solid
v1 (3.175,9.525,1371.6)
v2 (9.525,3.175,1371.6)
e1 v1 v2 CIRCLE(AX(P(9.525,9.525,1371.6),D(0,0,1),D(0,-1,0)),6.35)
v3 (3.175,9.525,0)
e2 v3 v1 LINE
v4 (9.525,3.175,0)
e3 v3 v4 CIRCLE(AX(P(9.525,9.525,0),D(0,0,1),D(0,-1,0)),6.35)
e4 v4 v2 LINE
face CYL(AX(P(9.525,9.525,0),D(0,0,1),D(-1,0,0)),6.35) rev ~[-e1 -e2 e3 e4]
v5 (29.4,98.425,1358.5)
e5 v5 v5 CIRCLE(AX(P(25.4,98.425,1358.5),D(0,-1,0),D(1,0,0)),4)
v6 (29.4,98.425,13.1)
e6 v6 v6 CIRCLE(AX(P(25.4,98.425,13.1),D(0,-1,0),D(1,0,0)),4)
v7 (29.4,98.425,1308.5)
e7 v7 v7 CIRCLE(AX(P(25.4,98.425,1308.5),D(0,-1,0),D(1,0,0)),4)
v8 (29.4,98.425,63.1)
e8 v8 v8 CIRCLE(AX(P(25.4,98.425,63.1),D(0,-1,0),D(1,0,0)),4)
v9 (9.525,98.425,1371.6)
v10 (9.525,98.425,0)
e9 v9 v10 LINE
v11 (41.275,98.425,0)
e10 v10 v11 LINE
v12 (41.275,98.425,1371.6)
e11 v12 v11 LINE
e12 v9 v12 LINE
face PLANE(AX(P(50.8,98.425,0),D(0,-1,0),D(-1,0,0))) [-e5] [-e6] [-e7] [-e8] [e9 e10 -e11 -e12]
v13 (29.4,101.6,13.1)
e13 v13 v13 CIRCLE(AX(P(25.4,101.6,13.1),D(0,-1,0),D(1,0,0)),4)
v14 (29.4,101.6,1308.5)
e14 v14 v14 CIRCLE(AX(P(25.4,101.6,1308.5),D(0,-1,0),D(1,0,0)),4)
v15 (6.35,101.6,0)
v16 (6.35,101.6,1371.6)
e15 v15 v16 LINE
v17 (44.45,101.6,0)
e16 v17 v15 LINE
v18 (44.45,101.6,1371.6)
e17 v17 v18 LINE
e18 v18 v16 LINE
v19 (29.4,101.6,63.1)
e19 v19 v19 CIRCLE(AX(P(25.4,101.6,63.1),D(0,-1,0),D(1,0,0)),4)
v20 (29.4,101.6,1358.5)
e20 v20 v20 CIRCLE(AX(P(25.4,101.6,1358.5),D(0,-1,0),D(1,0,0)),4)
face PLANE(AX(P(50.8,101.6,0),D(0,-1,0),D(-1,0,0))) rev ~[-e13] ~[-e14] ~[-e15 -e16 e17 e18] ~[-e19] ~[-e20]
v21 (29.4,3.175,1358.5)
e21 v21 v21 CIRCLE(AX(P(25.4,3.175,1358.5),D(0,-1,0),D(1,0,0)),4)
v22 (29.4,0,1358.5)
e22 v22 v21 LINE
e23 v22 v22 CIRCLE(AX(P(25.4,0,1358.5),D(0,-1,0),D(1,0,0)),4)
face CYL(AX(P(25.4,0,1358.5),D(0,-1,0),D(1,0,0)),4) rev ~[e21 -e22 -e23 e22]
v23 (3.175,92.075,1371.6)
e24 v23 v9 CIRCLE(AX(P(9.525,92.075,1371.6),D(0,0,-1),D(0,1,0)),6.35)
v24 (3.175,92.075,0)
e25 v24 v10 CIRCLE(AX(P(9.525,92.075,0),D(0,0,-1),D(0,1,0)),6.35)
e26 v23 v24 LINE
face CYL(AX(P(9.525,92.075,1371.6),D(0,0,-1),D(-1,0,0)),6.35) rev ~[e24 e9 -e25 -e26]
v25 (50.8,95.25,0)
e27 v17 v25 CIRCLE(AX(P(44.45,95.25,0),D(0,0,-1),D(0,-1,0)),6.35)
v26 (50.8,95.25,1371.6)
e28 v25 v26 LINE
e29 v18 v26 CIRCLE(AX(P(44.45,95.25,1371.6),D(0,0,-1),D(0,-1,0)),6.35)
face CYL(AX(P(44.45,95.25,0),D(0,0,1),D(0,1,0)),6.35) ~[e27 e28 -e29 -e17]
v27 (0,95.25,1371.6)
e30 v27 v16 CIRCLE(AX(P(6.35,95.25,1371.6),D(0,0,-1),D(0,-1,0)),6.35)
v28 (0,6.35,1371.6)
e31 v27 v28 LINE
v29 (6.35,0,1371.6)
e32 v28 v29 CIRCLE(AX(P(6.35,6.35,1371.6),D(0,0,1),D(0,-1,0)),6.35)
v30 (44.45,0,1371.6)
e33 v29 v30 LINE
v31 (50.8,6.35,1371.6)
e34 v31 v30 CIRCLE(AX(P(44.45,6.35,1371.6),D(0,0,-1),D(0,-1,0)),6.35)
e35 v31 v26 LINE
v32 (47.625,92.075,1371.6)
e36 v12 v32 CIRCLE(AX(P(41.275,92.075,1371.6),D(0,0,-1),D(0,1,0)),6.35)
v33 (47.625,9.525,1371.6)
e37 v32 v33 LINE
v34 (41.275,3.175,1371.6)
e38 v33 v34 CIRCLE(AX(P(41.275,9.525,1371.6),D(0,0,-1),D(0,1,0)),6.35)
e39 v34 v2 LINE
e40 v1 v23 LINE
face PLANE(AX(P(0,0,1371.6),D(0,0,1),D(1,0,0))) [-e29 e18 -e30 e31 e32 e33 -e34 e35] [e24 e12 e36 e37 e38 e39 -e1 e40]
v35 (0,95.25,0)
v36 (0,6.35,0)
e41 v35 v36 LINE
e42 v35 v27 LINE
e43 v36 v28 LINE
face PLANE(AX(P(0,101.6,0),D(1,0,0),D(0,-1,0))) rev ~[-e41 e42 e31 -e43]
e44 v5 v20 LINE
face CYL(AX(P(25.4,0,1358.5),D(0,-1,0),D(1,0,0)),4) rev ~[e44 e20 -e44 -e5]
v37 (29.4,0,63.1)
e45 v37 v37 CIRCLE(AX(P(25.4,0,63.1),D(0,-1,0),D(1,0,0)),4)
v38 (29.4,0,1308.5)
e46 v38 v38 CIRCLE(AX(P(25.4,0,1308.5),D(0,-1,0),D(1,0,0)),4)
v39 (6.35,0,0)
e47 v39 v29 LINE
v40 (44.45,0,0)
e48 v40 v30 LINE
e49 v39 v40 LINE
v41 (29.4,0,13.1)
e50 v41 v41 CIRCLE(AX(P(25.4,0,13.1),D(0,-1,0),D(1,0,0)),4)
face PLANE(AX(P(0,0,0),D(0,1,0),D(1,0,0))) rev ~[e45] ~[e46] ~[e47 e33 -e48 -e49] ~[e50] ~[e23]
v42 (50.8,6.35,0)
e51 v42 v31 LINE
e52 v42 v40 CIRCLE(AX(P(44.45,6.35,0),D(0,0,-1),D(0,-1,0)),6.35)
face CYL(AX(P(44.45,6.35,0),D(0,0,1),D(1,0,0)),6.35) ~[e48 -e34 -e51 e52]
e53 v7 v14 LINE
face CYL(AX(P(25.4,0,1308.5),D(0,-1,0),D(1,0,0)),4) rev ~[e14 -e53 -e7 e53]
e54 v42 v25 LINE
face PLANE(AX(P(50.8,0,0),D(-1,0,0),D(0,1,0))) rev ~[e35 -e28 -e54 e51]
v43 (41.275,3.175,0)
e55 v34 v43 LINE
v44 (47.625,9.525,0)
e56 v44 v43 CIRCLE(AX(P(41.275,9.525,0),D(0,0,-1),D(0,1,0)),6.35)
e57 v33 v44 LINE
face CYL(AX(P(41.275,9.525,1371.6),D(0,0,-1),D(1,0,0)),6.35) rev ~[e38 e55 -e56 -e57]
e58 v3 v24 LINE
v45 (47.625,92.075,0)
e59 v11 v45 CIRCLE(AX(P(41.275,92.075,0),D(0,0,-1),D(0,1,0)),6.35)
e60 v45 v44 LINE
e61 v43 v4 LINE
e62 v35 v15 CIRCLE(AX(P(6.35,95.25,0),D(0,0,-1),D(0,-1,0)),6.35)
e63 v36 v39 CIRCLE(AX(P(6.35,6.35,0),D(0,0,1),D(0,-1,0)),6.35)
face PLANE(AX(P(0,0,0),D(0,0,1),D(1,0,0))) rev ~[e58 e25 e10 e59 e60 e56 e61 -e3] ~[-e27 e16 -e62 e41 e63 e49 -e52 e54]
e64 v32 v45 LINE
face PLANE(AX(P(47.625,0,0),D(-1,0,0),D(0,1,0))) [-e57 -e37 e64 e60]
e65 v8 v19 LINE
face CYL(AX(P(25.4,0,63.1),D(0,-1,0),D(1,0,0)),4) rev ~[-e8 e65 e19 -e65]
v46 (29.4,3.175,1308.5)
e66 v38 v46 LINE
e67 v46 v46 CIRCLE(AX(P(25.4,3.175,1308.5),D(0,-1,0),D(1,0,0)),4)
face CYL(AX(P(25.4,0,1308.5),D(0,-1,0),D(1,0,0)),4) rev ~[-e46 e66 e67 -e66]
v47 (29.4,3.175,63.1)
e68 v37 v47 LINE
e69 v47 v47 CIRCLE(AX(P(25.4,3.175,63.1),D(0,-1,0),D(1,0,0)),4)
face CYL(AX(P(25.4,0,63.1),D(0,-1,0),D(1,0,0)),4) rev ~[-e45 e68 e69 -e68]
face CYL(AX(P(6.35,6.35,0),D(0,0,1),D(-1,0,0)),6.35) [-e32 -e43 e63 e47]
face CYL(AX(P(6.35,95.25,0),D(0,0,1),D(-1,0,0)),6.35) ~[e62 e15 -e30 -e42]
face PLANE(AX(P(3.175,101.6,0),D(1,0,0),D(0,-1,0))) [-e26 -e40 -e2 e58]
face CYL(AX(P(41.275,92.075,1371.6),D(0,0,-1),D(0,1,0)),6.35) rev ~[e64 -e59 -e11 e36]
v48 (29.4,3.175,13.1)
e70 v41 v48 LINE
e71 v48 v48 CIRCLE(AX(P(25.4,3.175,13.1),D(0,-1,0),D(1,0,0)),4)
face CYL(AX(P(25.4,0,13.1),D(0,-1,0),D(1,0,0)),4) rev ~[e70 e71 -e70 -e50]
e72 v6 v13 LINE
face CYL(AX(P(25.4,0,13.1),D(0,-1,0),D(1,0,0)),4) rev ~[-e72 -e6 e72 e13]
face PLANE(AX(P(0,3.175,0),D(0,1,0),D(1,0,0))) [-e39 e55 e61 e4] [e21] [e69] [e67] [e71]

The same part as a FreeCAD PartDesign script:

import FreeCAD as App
import Part
import Sketcher
from FreeCAD import Vector
Q = App.Units.Quantity


def edges_at(feature, points):
    """Names of the edges that pass closest to the given points."""
    edges = feature.Shape.Edges
    near = lambda p: min(range(len(edges)), key=lambda i: edges[i].distToShape(Part.Vertex(*p))[0])
    return sorted({f"Edge{near(p) + 1}" for p in points})


def faces_at(feature, points):
    """Names of the faces that lie closest to the given points."""
    faces = feature.Shape.Faces
    near = lambda p: min(range(len(faces)), key=lambda i: faces[i].distToShape(Part.Vertex(*p))[0])
    return sorted({f"Face{near(p) + 1}" for p in points})


def add_polygon(sketch, points):
    """Adds a closed chain of lines whose ends are joined by coincident constraints."""
    first, n = sketch.GeometryCount, len(points)
    for a, b in zip(points, points[1:] + points[:1]):
        sketch.addGeometry(Part.LineSegment(App.Vector(*a, 0), App.Vector(*b, 0)), False)
    for i in range(n):
        sketch.addConstraint(Sketcher.Constraint("Coincident", first + i, 2, first + (i + 1) % n, 1))

doc = App.newDocument("Part")
body = doc.addObject("PartDesign::Body", "Body")

# Sketch on XY plane
sketch1 = body.newObject("Sketcher::SketchObject", "Sketch")
sketch1.AttachmentSupport = (doc.getObject("XY_Plane"), [""])
sketch1.MapMode = "FlatFace"
add_polygon(sketch1, [(0, 101.6), (0, 0), (50.8, 0), (50.8, 101.6)])  # lines 0-3
sketch1.addConstraint(Sketcher.Constraint("Vertical", 0))
sketch1.addConstraint(Sketcher.Constraint("Horizontal", 1))
sketch1.addConstraint(Sketcher.Constraint("Vertical", 2))
sketch1.addConstraint(Sketcher.Constraint("Horizontal", 3))
sketch1.addConstraint(Sketcher.Constraint("Coincident", 0, 2, -1, 1))
sketch1.addConstraint(Sketcher.Constraint("DistanceX", 1, 1, 1, 2, Q("2 in")))
sketch1.addConstraint(Sketcher.Constraint("DistanceY", 0, 2, 0, 1, Q("4 in")))
pad1 = body.newObject("PartDesign::Pad", "Pad")
pad1.Profile = sketch1
pad1.Length = Q("54 in")
doc.recompute()

thickness = body.newObject("PartDesign::Thickness", "Thickness")
thickness.Base = (pad1, faces_at(pad1, [(16.933, 67.733, 0), (16.933, 67.733, 1371.6)]))
thickness.Value = Q("0.125 in")
thickness.Reversed = True
thickness.Join = "Intersection"
doc.recompute()

fillet = body.newObject("PartDesign::Fillet", "Fillet")
fillet.Base = (thickness, edges_at(thickness, [
    (3.175, 3.175, 685.8),
    (47.625, 3.175, 685.8),
    (3.175, 98.425, 685.8),
    (47.625, 98.425, 685.8),
    (50.8, 101.6, 685.8),
    (50.8, 0, 685.8),
    (0, 0, 685.8),
    (0, 101.6, 685.8),
]))
fillet.Radius = Q("0.25 in")

# Sketch on XZ plane
sketch2 = body.newObject("Sketcher::SketchObject", "Sketch001")
sketch2.AttachmentSupport = (doc.getObject("XZ_Plane"), [""])
sketch2.MapMode = "FlatFace"
sketch2.addGeometry(Part.Circle(Vector(25.4, 63.1, 0), Vector(0, 0, 1), 4), False)
sketch2.addGeometry(Part.Circle(Vector(25.4, 13.1, 0), Vector(0, 0, 1), 4), False)
sketch2.addGeometry(Part.Circle(Vector(25.4, 1308.5, 0), Vector(0, 0, 1), 4), False)
sketch2.addGeometry(Part.Circle(Vector(25.4, 1358.5, 0), Vector(0, 0, 1), 4), False)
sketch2.addConstraint(Sketcher.Constraint("Equal", 0, 1))
sketch2.addConstraint(Sketcher.Constraint("Equal", 1, 2))
sketch2.addConstraint(Sketcher.Constraint("Equal", 2, 3))
sketch2.addConstraint(Sketcher.Constraint("Vertical", 0, 3, 1, 3))
sketch2.addConstraint(Sketcher.Constraint("Vertical", 1, 3, 2, 3))
sketch2.addConstraint(Sketcher.Constraint("Vertical", 2, 3, 3, 3))
sketch2.addConstraint(Sketcher.Constraint("Diameter", 0, 8.0))
sketch2.addConstraint(Sketcher.Constraint("DistanceX", -1, 1, 0, 3, Q("1 in")))
sketch2.addConstraint(Sketcher.Constraint("DistanceY", 1, 3, 2, 3, Q("51 in")))
sketch2.addConstraint(Sketcher.Constraint("DistanceY", 0, 3, 3, 3, Q("51 in")))
sketch2.addConstraint(Sketcher.Constraint("DistanceY", 1, 3, 0, 3, Q("1.9685 in")))
sketch2.addConstraint(Sketcher.Constraint("DistanceY", -1, 1, 0, 3, 63.1))
pocket1 = body.newObject("PartDesign::Pocket", "Pocket")
pocket1.Profile = sketch2
pocket1.Length = Q("49 in")

doc.recompute()
